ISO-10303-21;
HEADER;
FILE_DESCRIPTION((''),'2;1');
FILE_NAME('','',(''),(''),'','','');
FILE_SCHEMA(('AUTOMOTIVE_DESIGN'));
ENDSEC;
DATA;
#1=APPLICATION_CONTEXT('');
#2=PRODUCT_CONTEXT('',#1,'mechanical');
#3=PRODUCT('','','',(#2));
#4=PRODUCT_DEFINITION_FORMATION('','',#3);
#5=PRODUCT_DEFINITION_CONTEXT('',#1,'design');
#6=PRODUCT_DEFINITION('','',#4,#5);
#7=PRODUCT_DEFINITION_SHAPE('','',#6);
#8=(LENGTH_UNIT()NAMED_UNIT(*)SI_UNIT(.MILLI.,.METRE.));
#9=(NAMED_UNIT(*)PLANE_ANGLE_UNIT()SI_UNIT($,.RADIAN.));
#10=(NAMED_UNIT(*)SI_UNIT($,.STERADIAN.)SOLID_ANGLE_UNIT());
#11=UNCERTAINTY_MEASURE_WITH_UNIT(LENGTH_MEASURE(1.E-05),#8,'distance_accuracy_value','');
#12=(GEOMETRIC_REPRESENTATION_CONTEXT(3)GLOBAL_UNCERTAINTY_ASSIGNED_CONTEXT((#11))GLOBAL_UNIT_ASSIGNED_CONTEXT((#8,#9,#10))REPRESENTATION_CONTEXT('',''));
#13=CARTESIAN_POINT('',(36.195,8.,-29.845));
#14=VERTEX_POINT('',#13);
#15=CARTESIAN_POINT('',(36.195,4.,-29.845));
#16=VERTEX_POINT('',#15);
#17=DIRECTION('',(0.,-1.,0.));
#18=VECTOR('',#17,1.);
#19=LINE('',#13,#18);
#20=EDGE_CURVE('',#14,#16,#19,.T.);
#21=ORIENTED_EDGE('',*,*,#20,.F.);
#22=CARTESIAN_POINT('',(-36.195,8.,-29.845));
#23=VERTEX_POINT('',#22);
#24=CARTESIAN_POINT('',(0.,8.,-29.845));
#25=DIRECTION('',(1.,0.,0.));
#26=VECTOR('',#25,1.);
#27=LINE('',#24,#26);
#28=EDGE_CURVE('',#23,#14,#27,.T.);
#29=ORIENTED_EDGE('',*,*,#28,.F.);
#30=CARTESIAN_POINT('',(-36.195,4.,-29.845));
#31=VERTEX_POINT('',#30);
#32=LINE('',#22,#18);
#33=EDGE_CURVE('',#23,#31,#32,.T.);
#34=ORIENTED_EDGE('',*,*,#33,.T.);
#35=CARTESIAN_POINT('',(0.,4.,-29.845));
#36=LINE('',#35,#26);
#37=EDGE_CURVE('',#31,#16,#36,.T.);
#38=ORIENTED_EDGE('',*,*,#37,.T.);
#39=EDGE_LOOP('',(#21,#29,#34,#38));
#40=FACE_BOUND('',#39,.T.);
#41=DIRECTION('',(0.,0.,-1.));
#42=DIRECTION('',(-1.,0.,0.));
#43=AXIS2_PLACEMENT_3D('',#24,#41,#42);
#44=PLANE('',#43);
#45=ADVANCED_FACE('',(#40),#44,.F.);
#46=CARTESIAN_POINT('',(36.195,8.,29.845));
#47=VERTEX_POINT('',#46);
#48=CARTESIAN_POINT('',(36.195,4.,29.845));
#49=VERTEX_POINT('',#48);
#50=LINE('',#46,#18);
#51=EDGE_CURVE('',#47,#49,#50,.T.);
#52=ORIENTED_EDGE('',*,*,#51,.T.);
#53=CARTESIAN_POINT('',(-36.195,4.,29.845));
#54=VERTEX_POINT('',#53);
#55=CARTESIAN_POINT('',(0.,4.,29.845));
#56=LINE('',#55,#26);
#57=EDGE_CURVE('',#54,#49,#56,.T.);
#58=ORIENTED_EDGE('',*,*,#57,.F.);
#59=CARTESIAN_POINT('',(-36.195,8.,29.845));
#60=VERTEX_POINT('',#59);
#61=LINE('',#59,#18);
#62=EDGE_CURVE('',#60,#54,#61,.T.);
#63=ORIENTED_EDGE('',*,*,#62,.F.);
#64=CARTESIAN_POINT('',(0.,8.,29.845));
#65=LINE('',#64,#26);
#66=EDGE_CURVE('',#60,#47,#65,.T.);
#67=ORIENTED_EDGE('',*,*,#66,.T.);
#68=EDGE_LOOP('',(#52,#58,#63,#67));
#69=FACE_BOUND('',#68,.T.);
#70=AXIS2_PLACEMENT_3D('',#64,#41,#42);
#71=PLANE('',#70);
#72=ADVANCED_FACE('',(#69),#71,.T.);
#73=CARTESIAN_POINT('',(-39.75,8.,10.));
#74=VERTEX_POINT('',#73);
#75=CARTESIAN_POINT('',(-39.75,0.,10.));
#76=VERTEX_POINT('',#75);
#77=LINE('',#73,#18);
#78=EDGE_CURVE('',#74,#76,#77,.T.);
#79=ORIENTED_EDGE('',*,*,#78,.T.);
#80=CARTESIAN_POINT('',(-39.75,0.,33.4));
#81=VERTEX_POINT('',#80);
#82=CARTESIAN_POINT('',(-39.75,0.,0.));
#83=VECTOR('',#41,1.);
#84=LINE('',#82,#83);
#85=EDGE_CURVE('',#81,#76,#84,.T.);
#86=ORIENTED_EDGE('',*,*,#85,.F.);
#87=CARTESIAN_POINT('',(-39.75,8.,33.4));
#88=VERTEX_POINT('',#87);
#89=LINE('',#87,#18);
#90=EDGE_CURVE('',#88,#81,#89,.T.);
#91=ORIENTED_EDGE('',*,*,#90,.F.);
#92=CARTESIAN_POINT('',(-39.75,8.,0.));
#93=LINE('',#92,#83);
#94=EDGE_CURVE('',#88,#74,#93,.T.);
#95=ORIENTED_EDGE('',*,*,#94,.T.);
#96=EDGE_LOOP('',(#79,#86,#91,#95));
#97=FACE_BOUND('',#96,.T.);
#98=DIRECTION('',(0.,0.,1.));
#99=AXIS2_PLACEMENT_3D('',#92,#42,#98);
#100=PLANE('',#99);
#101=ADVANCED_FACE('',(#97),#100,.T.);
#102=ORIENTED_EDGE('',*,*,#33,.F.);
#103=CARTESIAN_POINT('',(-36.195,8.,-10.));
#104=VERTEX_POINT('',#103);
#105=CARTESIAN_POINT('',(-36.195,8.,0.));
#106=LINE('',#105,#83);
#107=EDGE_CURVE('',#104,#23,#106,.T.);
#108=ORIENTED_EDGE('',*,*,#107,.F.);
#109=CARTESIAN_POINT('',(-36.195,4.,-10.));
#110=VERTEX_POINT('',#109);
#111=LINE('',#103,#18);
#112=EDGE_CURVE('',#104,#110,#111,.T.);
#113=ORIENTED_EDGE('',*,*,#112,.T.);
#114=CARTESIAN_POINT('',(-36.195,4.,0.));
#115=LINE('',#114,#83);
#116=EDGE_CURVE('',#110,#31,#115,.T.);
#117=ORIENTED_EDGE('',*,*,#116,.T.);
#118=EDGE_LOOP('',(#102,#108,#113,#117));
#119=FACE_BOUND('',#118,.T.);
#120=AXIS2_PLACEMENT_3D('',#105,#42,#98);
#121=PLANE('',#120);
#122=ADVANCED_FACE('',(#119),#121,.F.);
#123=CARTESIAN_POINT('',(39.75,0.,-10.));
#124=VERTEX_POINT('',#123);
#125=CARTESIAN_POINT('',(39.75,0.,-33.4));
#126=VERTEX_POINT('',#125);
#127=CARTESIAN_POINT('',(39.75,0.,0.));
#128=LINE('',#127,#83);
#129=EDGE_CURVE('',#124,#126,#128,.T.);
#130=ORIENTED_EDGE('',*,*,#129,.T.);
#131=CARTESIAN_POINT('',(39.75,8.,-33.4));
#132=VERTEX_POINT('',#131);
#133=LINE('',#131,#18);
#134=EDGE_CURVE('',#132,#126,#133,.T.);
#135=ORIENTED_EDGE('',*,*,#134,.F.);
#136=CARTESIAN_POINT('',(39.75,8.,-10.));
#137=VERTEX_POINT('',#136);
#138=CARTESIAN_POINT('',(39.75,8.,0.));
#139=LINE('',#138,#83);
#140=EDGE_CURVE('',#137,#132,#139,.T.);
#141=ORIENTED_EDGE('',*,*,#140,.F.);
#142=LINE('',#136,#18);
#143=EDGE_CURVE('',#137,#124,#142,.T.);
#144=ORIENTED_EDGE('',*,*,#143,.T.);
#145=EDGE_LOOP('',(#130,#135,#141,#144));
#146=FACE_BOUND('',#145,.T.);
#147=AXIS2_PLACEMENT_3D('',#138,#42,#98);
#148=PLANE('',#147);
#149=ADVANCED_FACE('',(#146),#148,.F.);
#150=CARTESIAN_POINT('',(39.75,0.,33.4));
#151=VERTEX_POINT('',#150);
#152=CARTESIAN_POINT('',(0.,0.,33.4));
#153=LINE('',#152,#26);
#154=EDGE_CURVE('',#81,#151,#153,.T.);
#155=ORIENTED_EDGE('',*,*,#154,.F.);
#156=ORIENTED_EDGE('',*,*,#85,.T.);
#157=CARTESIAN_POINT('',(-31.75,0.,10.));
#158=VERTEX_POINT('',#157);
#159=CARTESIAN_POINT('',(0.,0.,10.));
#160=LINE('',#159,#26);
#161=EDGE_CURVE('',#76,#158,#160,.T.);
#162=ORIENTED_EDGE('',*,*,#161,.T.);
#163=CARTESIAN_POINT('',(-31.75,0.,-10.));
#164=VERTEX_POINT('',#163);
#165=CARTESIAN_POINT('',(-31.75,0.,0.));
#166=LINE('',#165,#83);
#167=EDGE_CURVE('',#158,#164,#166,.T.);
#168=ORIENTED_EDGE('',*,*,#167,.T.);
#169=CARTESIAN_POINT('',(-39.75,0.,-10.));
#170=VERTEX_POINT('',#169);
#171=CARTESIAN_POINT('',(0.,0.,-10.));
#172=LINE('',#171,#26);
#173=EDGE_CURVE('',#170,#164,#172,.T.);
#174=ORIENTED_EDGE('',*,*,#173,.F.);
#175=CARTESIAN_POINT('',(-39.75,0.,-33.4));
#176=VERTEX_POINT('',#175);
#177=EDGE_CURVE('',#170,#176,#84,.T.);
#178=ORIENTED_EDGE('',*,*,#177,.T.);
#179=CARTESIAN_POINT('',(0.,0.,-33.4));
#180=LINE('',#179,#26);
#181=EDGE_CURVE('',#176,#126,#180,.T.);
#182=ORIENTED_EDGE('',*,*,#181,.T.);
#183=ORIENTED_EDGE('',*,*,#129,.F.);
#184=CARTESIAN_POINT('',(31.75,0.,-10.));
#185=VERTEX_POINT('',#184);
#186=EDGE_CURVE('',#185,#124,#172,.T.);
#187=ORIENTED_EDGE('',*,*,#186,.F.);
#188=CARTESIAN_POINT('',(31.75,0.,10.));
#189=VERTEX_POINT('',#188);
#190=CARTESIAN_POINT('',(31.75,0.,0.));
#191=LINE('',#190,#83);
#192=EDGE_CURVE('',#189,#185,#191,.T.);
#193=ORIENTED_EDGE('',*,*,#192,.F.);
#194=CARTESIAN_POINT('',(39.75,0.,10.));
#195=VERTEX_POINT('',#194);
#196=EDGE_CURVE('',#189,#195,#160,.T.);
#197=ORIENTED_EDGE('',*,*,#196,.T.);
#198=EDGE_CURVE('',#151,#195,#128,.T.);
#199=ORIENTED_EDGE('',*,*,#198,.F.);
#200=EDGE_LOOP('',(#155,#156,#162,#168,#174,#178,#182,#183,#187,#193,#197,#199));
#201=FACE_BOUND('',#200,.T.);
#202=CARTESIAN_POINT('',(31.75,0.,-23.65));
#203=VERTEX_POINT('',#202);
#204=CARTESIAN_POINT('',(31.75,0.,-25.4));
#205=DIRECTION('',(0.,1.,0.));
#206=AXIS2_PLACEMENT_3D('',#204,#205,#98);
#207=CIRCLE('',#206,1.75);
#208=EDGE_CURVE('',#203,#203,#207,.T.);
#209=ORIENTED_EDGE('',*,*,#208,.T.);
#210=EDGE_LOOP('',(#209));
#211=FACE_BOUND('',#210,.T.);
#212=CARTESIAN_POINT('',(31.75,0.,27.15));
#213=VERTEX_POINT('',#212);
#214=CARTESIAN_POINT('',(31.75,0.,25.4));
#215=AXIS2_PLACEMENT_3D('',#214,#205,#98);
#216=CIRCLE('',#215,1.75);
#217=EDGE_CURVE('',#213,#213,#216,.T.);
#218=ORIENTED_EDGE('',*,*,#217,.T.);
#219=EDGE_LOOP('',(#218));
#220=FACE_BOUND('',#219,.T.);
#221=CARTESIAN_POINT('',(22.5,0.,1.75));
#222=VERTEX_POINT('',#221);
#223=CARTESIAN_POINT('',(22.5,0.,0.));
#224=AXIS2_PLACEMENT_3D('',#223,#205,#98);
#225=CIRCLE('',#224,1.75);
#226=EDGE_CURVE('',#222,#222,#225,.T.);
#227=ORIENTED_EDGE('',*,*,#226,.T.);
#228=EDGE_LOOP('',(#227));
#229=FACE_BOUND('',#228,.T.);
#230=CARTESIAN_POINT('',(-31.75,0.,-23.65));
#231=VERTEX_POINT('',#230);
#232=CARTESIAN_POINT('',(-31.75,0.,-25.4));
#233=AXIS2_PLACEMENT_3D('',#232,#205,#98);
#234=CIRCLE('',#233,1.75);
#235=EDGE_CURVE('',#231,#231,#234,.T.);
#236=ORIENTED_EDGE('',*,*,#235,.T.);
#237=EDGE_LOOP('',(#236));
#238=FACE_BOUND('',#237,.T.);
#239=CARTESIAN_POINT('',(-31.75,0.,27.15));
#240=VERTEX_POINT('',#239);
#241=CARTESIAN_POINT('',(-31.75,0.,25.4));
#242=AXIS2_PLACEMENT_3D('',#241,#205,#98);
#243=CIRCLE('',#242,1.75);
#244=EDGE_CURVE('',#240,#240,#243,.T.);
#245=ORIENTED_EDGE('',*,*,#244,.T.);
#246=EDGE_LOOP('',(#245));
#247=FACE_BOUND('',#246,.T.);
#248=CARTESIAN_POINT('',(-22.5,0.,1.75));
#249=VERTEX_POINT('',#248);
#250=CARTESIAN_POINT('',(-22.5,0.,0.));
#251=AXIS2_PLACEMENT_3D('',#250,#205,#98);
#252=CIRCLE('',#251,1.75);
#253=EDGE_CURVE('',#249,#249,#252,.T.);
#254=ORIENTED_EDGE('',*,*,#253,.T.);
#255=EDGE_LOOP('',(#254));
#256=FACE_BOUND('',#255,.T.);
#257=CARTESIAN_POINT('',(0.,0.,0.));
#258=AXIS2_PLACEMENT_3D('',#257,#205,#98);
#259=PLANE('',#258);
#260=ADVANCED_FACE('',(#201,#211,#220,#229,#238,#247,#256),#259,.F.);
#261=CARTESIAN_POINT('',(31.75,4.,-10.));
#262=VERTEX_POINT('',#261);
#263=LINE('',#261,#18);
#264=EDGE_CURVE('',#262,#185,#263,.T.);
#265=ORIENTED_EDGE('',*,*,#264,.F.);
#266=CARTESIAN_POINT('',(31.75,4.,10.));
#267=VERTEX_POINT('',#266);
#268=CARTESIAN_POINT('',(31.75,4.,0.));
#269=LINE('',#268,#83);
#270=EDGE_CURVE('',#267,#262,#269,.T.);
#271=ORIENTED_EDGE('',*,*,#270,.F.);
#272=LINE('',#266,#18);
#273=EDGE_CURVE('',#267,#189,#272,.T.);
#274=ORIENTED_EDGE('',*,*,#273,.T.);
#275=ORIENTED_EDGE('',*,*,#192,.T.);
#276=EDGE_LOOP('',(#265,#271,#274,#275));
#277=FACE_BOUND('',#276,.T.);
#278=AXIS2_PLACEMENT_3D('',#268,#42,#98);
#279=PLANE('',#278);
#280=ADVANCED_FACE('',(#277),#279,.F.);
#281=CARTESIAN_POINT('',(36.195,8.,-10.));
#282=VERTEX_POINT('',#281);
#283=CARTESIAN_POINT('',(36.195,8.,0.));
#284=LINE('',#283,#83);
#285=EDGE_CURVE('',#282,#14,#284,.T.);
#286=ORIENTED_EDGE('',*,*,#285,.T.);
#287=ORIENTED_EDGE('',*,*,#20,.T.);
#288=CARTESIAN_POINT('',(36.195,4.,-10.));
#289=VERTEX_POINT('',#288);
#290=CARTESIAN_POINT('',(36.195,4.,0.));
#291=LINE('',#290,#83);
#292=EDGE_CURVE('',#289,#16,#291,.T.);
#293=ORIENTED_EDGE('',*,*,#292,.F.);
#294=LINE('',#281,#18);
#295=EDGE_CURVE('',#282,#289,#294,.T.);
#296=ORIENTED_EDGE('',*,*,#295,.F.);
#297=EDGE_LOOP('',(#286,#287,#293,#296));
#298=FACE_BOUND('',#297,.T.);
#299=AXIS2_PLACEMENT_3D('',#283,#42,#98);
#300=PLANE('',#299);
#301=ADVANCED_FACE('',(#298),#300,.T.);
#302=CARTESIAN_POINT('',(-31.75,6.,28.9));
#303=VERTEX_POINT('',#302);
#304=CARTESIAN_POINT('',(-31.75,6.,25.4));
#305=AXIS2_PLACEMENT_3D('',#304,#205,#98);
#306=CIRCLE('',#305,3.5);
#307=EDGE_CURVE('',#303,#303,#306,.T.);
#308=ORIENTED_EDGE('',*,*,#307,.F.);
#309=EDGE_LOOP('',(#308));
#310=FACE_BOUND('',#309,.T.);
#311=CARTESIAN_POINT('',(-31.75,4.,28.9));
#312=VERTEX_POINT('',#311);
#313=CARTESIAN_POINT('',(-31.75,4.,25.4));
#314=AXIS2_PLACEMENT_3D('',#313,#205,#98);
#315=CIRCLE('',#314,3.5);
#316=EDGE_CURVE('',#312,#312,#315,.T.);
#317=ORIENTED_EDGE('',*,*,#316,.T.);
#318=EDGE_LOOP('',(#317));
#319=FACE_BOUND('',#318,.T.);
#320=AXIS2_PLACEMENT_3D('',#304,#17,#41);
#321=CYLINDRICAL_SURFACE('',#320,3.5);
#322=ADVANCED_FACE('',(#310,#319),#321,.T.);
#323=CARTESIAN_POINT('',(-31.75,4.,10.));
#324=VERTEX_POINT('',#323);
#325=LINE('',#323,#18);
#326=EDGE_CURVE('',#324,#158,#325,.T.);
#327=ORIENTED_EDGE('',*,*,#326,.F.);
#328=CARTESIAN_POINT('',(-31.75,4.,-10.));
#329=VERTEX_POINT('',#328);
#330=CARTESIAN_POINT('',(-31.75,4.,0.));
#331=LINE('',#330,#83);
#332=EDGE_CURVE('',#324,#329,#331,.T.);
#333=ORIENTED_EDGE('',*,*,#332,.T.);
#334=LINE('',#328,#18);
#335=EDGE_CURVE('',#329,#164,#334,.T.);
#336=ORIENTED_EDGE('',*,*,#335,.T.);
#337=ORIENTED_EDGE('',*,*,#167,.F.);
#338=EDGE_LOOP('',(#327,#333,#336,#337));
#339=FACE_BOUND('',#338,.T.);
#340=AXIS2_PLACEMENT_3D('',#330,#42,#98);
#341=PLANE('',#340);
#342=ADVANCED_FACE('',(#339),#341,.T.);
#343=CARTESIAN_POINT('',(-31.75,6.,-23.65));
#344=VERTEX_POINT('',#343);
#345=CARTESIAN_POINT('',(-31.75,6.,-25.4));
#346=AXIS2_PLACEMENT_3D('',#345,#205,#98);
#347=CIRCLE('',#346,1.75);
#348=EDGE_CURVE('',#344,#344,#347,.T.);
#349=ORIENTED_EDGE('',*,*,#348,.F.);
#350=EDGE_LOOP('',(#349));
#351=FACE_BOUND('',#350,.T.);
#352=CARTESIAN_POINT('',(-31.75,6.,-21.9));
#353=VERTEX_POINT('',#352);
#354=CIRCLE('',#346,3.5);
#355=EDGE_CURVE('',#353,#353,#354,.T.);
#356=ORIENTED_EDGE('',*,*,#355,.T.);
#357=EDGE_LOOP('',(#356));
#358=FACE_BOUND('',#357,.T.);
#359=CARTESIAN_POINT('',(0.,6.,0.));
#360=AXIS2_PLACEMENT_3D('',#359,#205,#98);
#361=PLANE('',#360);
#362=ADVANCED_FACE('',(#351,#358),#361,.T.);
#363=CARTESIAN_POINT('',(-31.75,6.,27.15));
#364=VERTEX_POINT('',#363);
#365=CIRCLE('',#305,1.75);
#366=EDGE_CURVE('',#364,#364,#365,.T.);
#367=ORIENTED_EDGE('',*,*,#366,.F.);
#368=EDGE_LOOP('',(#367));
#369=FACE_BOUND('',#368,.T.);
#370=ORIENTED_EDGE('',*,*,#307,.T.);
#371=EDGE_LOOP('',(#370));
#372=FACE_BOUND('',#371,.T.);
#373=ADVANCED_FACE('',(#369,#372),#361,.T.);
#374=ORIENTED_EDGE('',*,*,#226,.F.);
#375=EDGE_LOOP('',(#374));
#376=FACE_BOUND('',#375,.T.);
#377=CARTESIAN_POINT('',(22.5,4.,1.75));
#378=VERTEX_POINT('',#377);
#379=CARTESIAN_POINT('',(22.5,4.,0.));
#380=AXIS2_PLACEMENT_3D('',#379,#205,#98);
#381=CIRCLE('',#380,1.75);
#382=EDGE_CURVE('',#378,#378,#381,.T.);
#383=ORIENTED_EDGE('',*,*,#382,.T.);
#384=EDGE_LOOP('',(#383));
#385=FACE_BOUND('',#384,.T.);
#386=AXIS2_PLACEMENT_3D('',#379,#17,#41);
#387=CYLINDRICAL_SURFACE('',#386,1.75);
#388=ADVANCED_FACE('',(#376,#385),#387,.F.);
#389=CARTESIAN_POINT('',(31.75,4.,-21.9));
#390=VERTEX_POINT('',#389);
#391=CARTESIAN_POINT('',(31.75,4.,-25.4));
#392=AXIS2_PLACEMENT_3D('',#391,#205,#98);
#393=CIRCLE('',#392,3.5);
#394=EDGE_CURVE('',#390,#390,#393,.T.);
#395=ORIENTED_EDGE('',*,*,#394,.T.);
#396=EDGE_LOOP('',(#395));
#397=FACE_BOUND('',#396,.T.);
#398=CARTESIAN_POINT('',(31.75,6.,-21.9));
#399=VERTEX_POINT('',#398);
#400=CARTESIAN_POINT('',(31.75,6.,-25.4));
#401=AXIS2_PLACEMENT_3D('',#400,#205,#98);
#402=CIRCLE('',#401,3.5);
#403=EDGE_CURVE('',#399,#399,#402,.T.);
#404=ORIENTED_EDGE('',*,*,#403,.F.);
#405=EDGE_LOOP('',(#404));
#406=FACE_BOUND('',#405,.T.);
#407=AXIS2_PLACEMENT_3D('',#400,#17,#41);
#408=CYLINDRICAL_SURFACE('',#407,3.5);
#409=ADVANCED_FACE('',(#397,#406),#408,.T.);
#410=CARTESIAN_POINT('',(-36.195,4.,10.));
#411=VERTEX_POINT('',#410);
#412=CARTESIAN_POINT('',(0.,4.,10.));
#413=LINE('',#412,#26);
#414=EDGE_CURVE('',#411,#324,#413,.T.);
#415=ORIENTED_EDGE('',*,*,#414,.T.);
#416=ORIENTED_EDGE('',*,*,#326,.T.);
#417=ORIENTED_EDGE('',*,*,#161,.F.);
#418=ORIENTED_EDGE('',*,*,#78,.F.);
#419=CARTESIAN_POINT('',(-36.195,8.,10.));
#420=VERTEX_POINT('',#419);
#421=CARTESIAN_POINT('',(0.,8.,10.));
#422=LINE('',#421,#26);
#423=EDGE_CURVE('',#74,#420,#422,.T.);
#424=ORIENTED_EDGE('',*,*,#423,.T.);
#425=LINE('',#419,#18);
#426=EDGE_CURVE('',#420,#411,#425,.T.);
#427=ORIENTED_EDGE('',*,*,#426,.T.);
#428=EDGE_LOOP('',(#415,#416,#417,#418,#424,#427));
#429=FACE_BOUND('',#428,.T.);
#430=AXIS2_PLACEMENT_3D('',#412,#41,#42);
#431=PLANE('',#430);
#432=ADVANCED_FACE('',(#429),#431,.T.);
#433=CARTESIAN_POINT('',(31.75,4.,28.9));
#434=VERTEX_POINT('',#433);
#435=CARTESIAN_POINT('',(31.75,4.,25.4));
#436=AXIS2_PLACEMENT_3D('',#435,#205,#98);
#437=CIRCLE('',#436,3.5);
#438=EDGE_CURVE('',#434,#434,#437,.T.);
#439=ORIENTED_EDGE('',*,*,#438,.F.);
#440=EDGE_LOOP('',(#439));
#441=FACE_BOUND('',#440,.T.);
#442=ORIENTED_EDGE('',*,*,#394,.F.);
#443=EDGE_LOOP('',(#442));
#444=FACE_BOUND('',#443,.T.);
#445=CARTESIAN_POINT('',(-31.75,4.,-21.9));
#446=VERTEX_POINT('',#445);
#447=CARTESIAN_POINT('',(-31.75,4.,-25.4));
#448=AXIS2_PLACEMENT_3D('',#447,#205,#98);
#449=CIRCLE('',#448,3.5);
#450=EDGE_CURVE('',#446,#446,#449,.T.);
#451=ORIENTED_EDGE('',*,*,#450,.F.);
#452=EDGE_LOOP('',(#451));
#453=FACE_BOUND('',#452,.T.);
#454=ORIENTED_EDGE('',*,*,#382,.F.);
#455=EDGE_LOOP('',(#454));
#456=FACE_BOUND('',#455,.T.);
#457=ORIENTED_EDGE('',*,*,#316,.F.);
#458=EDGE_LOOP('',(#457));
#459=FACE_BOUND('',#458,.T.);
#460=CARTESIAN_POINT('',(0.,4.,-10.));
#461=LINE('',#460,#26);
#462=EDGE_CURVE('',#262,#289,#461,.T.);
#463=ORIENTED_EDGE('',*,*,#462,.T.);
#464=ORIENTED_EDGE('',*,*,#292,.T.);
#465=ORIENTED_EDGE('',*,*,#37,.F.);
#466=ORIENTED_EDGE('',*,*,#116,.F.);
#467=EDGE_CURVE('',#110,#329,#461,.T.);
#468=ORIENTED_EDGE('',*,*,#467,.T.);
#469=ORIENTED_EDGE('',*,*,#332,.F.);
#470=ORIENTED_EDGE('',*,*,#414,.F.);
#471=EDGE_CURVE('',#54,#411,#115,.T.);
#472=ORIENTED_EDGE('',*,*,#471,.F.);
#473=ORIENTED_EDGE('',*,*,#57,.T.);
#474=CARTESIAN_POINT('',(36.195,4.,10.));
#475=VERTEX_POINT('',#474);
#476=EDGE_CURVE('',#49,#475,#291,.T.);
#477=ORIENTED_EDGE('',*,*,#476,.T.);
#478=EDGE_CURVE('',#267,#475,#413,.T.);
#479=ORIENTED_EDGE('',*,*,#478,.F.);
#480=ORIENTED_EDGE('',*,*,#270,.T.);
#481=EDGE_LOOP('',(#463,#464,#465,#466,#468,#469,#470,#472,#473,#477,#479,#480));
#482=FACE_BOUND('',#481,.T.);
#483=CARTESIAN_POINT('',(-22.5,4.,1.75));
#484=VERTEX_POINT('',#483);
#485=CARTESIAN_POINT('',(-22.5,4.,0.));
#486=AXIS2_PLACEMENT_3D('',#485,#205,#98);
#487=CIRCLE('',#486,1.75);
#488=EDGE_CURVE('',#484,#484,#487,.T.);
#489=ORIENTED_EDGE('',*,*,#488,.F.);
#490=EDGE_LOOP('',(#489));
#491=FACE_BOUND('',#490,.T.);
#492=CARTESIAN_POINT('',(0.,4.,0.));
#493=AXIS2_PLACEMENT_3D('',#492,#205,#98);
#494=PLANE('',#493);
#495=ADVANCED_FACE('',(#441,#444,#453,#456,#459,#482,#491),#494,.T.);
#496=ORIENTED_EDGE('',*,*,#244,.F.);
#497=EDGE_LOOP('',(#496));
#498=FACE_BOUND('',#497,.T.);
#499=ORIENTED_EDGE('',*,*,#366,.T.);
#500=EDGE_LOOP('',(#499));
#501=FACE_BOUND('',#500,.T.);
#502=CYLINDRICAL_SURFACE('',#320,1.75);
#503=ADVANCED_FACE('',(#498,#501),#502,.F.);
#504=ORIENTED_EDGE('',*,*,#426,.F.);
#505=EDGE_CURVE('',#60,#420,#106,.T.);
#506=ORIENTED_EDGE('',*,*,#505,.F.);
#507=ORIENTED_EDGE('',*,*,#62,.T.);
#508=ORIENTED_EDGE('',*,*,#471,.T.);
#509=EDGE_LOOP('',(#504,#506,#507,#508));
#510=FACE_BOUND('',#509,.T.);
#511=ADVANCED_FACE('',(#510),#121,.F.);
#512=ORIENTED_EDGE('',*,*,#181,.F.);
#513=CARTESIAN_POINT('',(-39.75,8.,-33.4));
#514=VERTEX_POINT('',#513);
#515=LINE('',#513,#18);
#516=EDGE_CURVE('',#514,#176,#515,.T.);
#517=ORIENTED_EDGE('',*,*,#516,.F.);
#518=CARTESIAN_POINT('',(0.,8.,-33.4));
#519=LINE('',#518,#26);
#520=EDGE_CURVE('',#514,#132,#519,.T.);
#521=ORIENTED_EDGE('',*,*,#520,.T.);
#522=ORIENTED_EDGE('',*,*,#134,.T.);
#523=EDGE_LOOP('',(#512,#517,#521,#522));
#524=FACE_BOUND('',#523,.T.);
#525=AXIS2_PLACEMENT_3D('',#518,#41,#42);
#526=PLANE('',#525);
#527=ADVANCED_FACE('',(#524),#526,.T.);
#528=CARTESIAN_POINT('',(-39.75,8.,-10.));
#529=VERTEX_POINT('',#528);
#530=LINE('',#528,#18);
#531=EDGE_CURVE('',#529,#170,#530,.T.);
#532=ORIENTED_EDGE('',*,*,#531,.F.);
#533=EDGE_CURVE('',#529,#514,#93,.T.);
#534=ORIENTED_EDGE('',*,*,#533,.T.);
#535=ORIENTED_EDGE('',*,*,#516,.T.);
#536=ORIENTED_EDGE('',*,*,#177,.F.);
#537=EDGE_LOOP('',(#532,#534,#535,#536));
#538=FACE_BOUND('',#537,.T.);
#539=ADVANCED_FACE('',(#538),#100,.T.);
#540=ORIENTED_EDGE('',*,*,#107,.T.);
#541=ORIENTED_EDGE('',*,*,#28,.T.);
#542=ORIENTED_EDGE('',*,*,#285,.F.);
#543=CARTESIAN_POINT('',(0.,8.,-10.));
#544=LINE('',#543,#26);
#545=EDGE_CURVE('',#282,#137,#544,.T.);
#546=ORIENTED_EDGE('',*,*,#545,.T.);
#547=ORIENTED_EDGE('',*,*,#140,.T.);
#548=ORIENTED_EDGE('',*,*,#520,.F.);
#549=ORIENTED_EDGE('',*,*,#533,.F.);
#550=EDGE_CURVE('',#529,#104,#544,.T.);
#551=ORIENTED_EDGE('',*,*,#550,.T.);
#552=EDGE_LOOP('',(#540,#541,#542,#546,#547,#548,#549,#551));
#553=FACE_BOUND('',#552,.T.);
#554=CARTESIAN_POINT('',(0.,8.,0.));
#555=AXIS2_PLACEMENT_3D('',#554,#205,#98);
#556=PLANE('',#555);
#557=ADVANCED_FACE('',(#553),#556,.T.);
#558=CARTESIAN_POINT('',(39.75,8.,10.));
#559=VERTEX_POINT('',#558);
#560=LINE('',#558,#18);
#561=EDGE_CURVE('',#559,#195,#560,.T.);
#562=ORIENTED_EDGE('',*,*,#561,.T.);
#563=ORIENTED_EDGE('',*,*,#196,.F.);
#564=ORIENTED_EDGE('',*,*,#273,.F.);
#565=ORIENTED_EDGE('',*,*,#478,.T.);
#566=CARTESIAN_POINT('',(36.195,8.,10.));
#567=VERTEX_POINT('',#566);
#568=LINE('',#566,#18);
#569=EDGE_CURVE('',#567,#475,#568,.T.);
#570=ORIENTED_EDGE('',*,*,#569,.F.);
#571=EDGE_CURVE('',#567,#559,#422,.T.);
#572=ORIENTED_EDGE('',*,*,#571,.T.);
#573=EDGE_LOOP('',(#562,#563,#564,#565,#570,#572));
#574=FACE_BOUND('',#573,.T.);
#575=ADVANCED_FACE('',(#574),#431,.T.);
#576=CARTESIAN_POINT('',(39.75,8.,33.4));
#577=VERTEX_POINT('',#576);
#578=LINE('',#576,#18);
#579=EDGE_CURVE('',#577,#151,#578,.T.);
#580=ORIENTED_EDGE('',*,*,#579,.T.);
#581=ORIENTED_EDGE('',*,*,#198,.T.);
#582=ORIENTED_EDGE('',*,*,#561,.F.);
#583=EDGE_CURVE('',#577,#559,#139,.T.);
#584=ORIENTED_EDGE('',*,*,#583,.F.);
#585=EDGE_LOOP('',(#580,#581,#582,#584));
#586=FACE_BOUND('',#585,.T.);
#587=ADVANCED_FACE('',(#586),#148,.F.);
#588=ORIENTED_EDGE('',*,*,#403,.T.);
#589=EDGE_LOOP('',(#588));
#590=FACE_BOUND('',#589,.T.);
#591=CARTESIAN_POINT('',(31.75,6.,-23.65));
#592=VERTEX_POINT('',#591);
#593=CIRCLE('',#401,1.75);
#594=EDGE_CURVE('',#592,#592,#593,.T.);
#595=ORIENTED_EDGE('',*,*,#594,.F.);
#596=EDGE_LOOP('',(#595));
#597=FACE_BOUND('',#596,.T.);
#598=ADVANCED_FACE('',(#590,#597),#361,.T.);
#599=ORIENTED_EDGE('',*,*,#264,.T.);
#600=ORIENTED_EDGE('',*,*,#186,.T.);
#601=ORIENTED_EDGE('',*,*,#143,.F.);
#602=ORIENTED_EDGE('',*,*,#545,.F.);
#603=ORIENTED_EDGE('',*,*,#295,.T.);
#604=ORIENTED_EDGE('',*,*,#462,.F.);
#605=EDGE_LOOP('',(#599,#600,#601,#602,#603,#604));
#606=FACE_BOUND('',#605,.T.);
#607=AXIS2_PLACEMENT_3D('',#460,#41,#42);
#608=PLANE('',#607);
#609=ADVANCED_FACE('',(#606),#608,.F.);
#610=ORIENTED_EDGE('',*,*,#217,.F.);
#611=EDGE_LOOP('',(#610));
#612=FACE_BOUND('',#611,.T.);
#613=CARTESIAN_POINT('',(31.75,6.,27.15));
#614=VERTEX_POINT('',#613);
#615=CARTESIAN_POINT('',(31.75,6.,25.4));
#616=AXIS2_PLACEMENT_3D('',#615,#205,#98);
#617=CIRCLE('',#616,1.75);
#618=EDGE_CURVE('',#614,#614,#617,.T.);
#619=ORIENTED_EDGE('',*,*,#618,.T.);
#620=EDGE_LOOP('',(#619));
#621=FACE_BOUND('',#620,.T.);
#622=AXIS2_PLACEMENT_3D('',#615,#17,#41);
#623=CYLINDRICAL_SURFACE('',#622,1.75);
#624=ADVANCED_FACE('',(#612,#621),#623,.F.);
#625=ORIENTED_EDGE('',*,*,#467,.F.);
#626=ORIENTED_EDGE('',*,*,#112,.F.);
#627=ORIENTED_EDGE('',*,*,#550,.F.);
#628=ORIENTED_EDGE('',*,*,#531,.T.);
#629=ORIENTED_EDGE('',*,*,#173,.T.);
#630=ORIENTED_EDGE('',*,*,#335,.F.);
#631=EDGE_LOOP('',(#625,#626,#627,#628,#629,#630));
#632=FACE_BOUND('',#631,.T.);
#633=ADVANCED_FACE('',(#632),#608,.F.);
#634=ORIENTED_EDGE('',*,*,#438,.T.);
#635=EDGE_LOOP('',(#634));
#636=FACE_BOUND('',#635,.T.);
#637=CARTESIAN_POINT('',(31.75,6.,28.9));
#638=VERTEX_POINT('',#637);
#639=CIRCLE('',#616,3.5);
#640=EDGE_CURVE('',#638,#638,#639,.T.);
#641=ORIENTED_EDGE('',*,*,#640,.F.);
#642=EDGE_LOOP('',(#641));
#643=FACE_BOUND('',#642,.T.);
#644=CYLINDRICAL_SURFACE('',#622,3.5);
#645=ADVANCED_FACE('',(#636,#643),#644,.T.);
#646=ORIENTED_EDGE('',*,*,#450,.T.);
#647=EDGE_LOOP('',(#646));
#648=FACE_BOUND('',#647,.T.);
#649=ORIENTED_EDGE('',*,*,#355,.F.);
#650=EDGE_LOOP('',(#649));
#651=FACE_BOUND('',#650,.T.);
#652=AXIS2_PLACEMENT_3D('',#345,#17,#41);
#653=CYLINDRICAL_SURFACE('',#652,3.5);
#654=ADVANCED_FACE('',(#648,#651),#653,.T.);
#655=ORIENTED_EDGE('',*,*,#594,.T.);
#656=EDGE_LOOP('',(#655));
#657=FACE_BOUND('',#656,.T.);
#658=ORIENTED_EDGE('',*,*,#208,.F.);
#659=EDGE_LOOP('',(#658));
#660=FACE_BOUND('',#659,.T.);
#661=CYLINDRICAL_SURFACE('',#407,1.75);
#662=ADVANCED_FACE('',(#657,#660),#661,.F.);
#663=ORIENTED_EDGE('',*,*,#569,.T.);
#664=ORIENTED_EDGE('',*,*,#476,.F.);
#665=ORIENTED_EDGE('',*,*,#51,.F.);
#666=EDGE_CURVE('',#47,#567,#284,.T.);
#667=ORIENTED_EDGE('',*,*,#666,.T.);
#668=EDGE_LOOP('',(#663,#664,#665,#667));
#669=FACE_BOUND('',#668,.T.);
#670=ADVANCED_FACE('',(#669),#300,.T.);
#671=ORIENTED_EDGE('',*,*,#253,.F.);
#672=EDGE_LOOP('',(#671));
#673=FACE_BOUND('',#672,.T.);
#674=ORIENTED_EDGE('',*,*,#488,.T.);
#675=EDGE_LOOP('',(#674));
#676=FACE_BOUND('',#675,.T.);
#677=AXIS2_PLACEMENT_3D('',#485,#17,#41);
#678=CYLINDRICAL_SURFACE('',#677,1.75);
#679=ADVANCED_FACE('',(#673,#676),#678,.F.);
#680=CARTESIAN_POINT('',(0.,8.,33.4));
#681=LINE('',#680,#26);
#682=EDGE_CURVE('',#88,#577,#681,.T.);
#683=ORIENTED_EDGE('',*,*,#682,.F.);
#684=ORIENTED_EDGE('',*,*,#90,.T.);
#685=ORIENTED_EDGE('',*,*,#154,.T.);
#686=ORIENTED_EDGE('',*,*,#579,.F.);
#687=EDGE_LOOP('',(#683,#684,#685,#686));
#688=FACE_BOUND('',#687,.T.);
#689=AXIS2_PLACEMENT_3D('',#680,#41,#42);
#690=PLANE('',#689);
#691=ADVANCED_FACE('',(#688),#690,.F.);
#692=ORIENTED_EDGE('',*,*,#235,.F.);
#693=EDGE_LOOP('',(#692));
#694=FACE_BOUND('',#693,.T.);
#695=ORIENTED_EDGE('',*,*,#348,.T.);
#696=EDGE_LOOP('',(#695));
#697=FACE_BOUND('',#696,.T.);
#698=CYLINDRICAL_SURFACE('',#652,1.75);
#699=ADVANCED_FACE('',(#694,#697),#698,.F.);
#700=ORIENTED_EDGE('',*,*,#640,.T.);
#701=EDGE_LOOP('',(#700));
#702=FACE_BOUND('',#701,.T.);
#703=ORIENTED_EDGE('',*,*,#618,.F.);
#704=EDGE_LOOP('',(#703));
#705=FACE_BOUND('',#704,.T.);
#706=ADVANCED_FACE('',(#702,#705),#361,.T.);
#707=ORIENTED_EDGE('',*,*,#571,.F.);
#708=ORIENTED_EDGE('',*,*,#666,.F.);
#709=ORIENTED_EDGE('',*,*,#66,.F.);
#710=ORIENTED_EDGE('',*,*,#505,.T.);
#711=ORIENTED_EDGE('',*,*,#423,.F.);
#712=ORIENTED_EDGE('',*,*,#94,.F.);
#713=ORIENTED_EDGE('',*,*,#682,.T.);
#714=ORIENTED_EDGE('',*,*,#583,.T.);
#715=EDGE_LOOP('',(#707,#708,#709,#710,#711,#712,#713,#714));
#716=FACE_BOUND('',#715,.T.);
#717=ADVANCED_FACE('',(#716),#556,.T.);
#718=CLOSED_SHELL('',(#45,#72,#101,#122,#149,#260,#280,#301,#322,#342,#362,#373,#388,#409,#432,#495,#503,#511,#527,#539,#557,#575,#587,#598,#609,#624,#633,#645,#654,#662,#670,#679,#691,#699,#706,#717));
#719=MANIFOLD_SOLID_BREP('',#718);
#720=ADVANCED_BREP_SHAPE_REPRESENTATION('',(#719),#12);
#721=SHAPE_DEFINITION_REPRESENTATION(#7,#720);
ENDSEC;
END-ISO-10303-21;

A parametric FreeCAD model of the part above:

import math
import FreeCAD as App
import Part
import Sketcher

doc = App.newDocument("Part")
body = doc.addObject("PartDesign::Body", "Body")

# Sketch on XZ plane
sketch1 = body.newObject("Sketcher::SketchObject", "Sketch")
sketch1.AttachmentSupport = (doc.getObject("XZ_Plane"), [""])
sketch1.MapMode = "FlatFace"
sketch1.addGeometry(Part.LineSegment(App.Vector(31.8, 10, 0), App.Vector(31.8, -10, 0)), False)
sketch1.addGeometry(Part.LineSegment(App.Vector(31.8, -10, 0), App.Vector(36.2, -10, 0)), False)
sketch1.addGeometry(Part.LineSegment(App.Vector(36.2, -10, 0), App.Vector(36.2, -29.8, 0)), False)
sketch1.addGeometry(Part.LineSegment(App.Vector(36.2, -29.8, 0), App.Vector(-36.2, -29.8, 0)), False)
sketch1.addGeometry(Part.LineSegment(App.Vector(-36.2, -29.8, 0), App.Vector(-36.2, -10, 0)), False)
sketch1.addGeometry(Part.LineSegment(App.Vector(-36.2, -10, 0), App.Vector(-31.8, -10, 0)), False)
sketch1.addGeometry(Part.LineSegment(App.Vector(-31.8, -10, 0), App.Vector(-31.8, 10, 0)), False)
sketch1.addGeometry(Part.LineSegment(App.Vector(-31.8, 10, 0), App.Vector(-36.2, 10, 0)), False)
sketch1.addGeometry(Part.LineSegment(App.Vector(-36.2, 10, 0), App.Vector(-36.2, 29.8, 0)), False)
sketch1.addGeometry(Part.LineSegment(App.Vector(-36.2, 29.8, 0), App.Vector(36.2, 29.8, 0)), False)
sketch1.addGeometry(Part.LineSegment(App.Vector(36.2, 29.8, 0), App.Vector(36.2, 10, 0)), False)
sketch1.addGeometry(Part.LineSegment(App.Vector(36.2, 10, 0), App.Vector(31.8, 10, 0)), False)
sketch1.addGeometry(Part.ArcOfCircle(Part.Circle(App.Vector(-31.8, 25.4, 0), App.Vector(0, 0, 1), 3.5), math.radians(-90), math.radians(0)), False)
sketch1.addGeometry(Part.ArcOfCircle(Part.Circle(App.Vector(-31.8, 25.4, 0), App.Vector(0, 0, 1), 3.5), math.radians(0), math.radians(270)), False)
sketch1.addGeometry(Part.ArcOfCircle(Part.Circle(App.Vector(31.8, 25.4, 0), App.Vector(0, 0, 1), 3.5), math.radians(-180), math.radians(-90)), False)
sketch1.addGeometry(Part.ArcOfCircle(Part.Circle(App.Vector(31.7, 25.4, 0), App.Vector(0, 0, 1), 3.5), math.radians(-90), math.radians(0)), False)
sketch1.addGeometry(Part.ArcOfCircle(Part.Circle(App.Vector(31.8, 25.4, 0), App.Vector(0, 0, 1), 3.5), math.radians(0), math.radians(180)), False)
sketch1.addGeometry(Part.ArcOfCircle(Part.Circle(App.Vector(31.8, -25.4, 0), App.Vector(0, 0, 1), 3.5), math.radians(90), math.radians(180)), False)
sketch1.addGeometry(Part.ArcOfCircle(Part.Circle(App.Vector(31.8, -25.4, 0), App.Vector(0, 0, 1), 3.5), math.radians(180), math.radians(360)), False)
sketch1.addGeometry(Part.ArcOfCircle(Part.Circle(App.Vector(31.7, -25.4, 0), App.Vector(0, 0, 1), 3.5), math.radians(0), math.radians(90)), False)
sketch1.addGeometry(Part.ArcOfCircle(Part.Circle(App.Vector(-31.8, -25.4, 0), App.Vector(0, 0, 1), 3.5), math.radians(0), math.radians(90)), False)
sketch1.addGeometry(Part.ArcOfCircle(Part.Circle(App.Vector(-31.8, -25.4, 0), App.Vector(0, 0, 1), 3.5), math.radians(90), math.radians(360)), False)
sketch1.addGeometry(Part.Circle(App.Vector(22.5, 0, 0), App.Vector(0, 0, 1), 1.8), False)
sketch1.addGeometry(Part.Circle(App.Vector(-22.5, 0, 0), App.Vector(0, 0, 1), 1.8), False)
sketch1.addConstraint(Sketcher.Constraint("Coincident", 0, 2, 1, 1))
sketch1.addConstraint(Sketcher.Constraint("Coincident", 1, 2, 2, 1))
sketch1.addConstraint(Sketcher.Constraint("Coincident", 2, 2, 3, 1))
sketch1.addConstraint(Sketcher.Constraint("Coincident", 3, 2, 4, 1))
sketch1.addConstraint(Sketcher.Constraint("Coincident", 4, 2, 5, 1))
sketch1.addConstraint(Sketcher.Constraint("Coincident", 5, 2, 6, 1))
sketch1.addConstraint(Sketcher.Constraint("Coincident", 6, 2, 7, 1))
sketch1.addConstraint(Sketcher.Constraint("Coincident", 7, 2, 8, 1))
sketch1.addConstraint(Sketcher.Constraint("Coincident", 8, 2, 9, 1))
sketch1.addConstraint(Sketcher.Constraint("Coincident", 9, 2, 10, 1))
sketch1.addConstraint(Sketcher.Constraint("Coincident", 10, 2, 11, 1))
sketch1.addConstraint(Sketcher.Constraint("Coincident", 11, 2, 0, 1))
sketch1.addConstraint(Sketcher.Constraint("Tangent", 12, 1, 13, 2))
sketch1.addConstraint(Sketcher.Constraint("Coincident", 13, 1, 12, 2))
sketch1.addConstraint(Sketcher.Constraint("Tangent", 14, 2, 15, 1))
sketch1.addConstraint(Sketcher.Constraint("Tangent", 15, 2, 16, 1))
sketch1.addConstraint(Sketcher.Constraint("Tangent", 16, 2, 14, 1))
sketch1.addConstraint(Sketcher.Constraint("Tangent", 17, 2, 18, 1))
sketch1.addConstraint(Sketcher.Constraint("Tangent", 18, 2, 19, 1))
sketch1.addConstraint(Sketcher.Constraint("Tangent", 19, 2, 17, 1))
sketch1.addConstraint(Sketcher.Constraint("Tangent", 20, 1, 21, 2))
sketch1.addConstraint(Sketcher.Constraint("Coincident", 21, 1, 20, 2))
sketch1.addConstraint(Sketcher.Constraint("Vertical", 0))
sketch1.addConstraint(Sketcher.Constraint("Horizontal", 1))
sketch1.addConstraint(Sketcher.Constraint("Vertical", 2))
sketch1.addConstraint(Sketcher.Constraint("Horizontal", 3))
sketch1.addConstraint(Sketcher.Constraint("Vertical", 4))
sketch1.addConstraint(Sketcher.Constraint("Horizontal", 5))
sketch1.addConstraint(Sketcher.Constraint("Vertical", 6))
sketch1.addConstraint(Sketcher.Constraint("Horizontal", 7))
sketch1.addConstraint(Sketcher.Constraint("Vertical", 8))
sketch1.addConstraint(Sketcher.Constraint("Horizontal", 9))
sketch1.addConstraint(Sketcher.Constraint("Vertical", 10))
sketch1.addConstraint(Sketcher.Constraint("Horizontal", 11))
sketch1.addConstraint(Sketcher.Constraint("Equal", 13, 14))
sketch1.addConstraint(Sketcher.Constraint("Equal", 16, 17))
sketch1.addConstraint(Sketcher.Constraint("Equal", 19, 20))
sketch1.addConstraint(Sketcher.Constraint("Equal", 22, 23))
sketch1.addConstraint(Sketcher.Constraint("Symmetric", 12, 3, 17, 3, -1, 1))
sketch1.addConstraint(Sketcher.Constraint("Symmetric", 14, 3, 20, 3, -1, 1))
sketch1.addConstraint(Sketcher.Constraint("Symmetric", 22, 3, 23, 3, -1, 1))
sketch1.addConstraint(Sketcher.Constraint("Symmetric", 0, 2, 6, 2, -1, 1))
sketch1.addConstraint(Sketcher.Constraint("Symmetric", 2, 2, 8, 2, -1, 1))
sketch1.addConstraint(Sketcher.Constraint("Symmetric", 4, 2, 10, 2, -1, 1))
sketch1.addConstraint(Sketcher.Constraint("Symmetric", 12, 3, 14, 3, -2))
sketch1.addConstraint(Sketcher.Constraint("Symmetric", 1, 2, 4, 2, -2))
sketch1.addConstraint(Sketcher.Constraint("PointOnObject", 22, 3, -1))
sketch1.addConstraint(Sketcher.Constraint("Horizontal", 16, 3, 13, 1))
sketch1.addConstraint(Sketcher.Constraint("Horizontal", 13, 1, 15, 2))
sketch1.addConstraint(Sketcher.Constraint("Horizontal", 15, 2, 16, 2))
sketch1.addConstraint(Sketcher.Constraint("Horizontal", 21, 3, 17, 2))
sketch1.addConstraint(Sketcher.Constraint("Horizontal", 17, 2, 18, 2))
sketch1.addConstraint(Sketcher.Constraint("Horizontal", 18, 2, 20, 1))
sketch1.addConstraint(Sketcher.Constraint("Vertical", 19, 3, 0, 2))
sketch1.addConstraint(Sketcher.Constraint("Vertical", 6, 2, 12, 1))
sketch1.addConstraint(Sketcher.Constraint("Vertical", 11, 2, 14, 2))
sketch1.addConstraint(Sketcher.Constraint("Vertical", 14, 2, 19, 2))
sketch1.addConstraint(Sketcher.Constraint("Vertical", 12, 1, 21, 1))
sketch1.addConstraint(Sketcher.Constraint("Diameter", 22, 3.5))
sketch1.addConstraint(Sketcher.Constraint("Radius", 12, 3.5))
sketch1.addConstraint(Sketcher.Constraint("DistanceY", 0, 2, 0, 1, 20.0))
sketch1.addConstraint(Sketcher.Constraint("DistanceX", 23, 3, 22, 3, 45.0))
sketch1.addConstraint(Sketcher.Constraint("DistanceX", 3, 2, 3, 1, 72.39))
sketch1.addConstraint(Sketcher.Constraint("DistanceY", -1, 1, 12, 3, 25.4))
sketch1.addConstraint(Sketcher.Constraint("DistanceX", 13, 3, 14, 3, 63.5))
sketch1.addConstraint(Sketcher.Constraint("DistanceY", 2, 2, 2, 1, 19.845))
pad1 = body.newObject("PartDesign::Pad", "Pad")
pad1.Profile = sketch1
pad1.Length = 4
pad1.Reversed = True

# Sketch on XZ plane
sketch2 = body.newObject("Sketcher::SketchObject", "Sketch001")
sketch2.AttachmentSupport = (doc.getObject("XZ_Plane"), [""])
sketch2.MapMode = "FlatFace"
sketch2.addGeometry(Part.LineSegment(App.Vector(39.8, 33.4, 0), App.Vector(39.8, 10, 0)), False)
sketch2.addGeometry(Part.LineSegment(App.Vector(39.8, 10, 0), App.Vector(36.2, 10, 0)), False)
sketch2.addGeometry(Part.LineSegment(App.Vector(36.2, 10, 0), App.Vector(36.2, 29.8, 0)), False)
sketch2.addGeometry(Part.LineSegment(App.Vector(36.2, 29.8, 0), App.Vector(-36.2, 29.8, 0)), False)
sketch2.addGeometry(Part.LineSegment(App.Vector(-36.2, 29.8, 0), App.Vector(-36.2, 10, 0)), False)
sketch2.addGeometry(Part.LineSegment(App.Vector(-36.2, 10, 0), App.Vector(-39.8, 10, 0)), False)
sketch2.addGeometry(Part.LineSegment(App.Vector(-39.8, 10, 0), App.Vector(-39.8, 33.4, 0)), False)
sketch2.addGeometry(Part.LineSegment(App.Vector(-39.8, 33.4, 0), App.Vector(39.8, 33.4, 0)), False)
sketch2.addGeometry(Part.LineSegment(App.Vector(36.2, -10, 0), App.Vector(39.8, -10, 0)), False)
sketch2.addGeometry(Part.LineSegment(App.Vector(39.8, -10, 0), App.Vector(39.8, -33.4, 0)), False)
sketch2.addGeometry(Part.LineSegment(App.Vector(39.8, -33.4, 0), App.Vector(-39.8, -33.4, 0)), False)
sketch2.addGeometry(Part.LineSegment(App.Vector(-39.8, -33.4, 0), App.Vector(-39.8, -10, 0)), False)
sketch2.addGeometry(Part.LineSegment(App.Vector(-39.8, -10, 0), App.Vector(-36.2, -10, 0)), False)
sketch2.addGeometry(Part.LineSegment(App.Vector(-36.2, -10, 0), App.Vector(-36.2, -29.8, 0)), False)
sketch2.addGeometry(Part.LineSegment(App.Vector(-36.2, -29.8, 0), App.Vector(36.2, -29.8, 0)), False)
sketch2.addGeometry(Part.LineSegment(App.Vector(36.2, -29.8, 0), App.Vector(36.2, -10, 0)), False)
sketch2.addConstraint(Sketcher.Constraint("Coincident", 0, 2, 1, 1))
sketch2.addConstraint(Sketcher.Constraint("Coincident", 1, 2, 2, 1))
sketch2.addConstraint(Sketcher.Constraint("Coincident", 2, 2, 3, 1))
sketch2.addConstraint(Sketcher.Constraint("Coincident", 3, 2, 4, 1))
sketch2.addConstraint(Sketcher.Constraint("Coincident", 4, 2, 5, 1))
sketch2.addConstraint(Sketcher.Constraint("Coincident", 5, 2, 6, 1))
sketch2.addConstraint(Sketcher.Constraint("Coincident", 6, 2, 7, 1))
sketch2.addConstraint(Sketcher.Constraint("Coincident", 7, 2, 0, 1))
sketch2.addConstraint(Sketcher.Constraint("Coincident", 8, 2, 9, 1))
sketch2.addConstraint(Sketcher.Constraint("Coincident", 9, 2, 10, 1))
sketch2.addConstraint(Sketcher.Constraint("Coincident", 10, 2, 11, 1))
sketch2.addConstraint(Sketcher.Constraint("Coincident", 11, 2, 12, 1))
sketch2.addConstraint(Sketcher.Constraint("Coincident", 12, 2, 13, 1))
sketch2.addConstraint(Sketcher.Constraint("Coincident", 13, 2, 14, 1))
sketch2.addConstraint(Sketcher.Constraint("Coincident", 14, 2, 15, 1))
sketch2.addConstraint(Sketcher.Constraint("Coincident", 15, 2, 8, 1))
sketch2.addConstraint(Sketcher.Constraint("Vertical", 0))
sketch2.addConstraint(Sketcher.Constraint("Horizontal", 1))
sketch2.addConstraint(Sketcher.Constraint("Vertical", 2))
sketch2.addConstraint(Sketcher.Constraint("Horizontal", 3))
sketch2.addConstraint(Sketcher.Constraint("Vertical", 4))
sketch2.addConstraint(Sketcher.Constraint("Horizontal", 5))
sketch2.addConstraint(Sketcher.Constraint("Vertical", 6))
sketch2.addConstraint(Sketcher.Constraint("Horizontal", 7))
sketch2.addConstraint(Sketcher.Constraint("Horizontal", 8))
sketch2.addConstraint(Sketcher.Constraint("Vertical", 9))
sketch2.addConstraint(Sketcher.Constraint("Horizontal", 10))
sketch2.addConstraint(Sketcher.Constraint("Vertical", 11))
sketch2.addConstraint(Sketcher.Constraint("Horizontal", 12))
sketch2.addConstraint(Sketcher.Constraint("Vertical", 13))
sketch2.addConstraint(Sketcher.Constraint("Horizontal", 14))
sketch2.addConstraint(Sketcher.Constraint("Vertical", 15))
sketch2.addConstraint(Sketcher.Constraint("Symmetric", 5, 2, 8, 2, -1, 1))
sketch2.addConstraint(Sketcher.Constraint("Symmetric", 7, 2, 10, 2, -1, 1))
sketch2.addConstraint(Sketcher.Constraint("Symmetric", 1, 2, 12, 2, -1, 1))
sketch2.addConstraint(Sketcher.Constraint("Symmetric", 3, 2, 14, 2, -1, 1))
sketch2.addConstraint(Sketcher.Constraint("Symmetric", 1, 2, 4, 2, -2))
sketch2.addConstraint(Sketcher.Constraint("Vertical", 7, 2, 8, 2))
sketch2.addConstraint(Sketcher.Constraint("DistanceX", 7, 1, 7, 2, 79.5))
sketch2.addConstraint(Sketcher.Constraint("DistanceY", 0, 2, 0, 1, 23.4))
sketch2.addConstraint(Sketcher.Constraint("DistanceY", -1, 1, 0, 2, 10.0))
sketch2.addConstraint(Sketcher.Constraint("DistanceX", 3, 2, 3, 1, 72.39))
sketch2.addConstraint(Sketcher.Constraint("DistanceY", 2, 1, 2, 2, 19.845))
pad2 = body.newObject("PartDesign::Pad", "Pad001")
pad2.Profile = sketch2
pad2.Length = 8
pad2.Reversed = True

# Sketch on XZ plane
sketch3 = body.newObject("Sketcher::SketchObject", "Sketch002")
sketch3.AttachmentSupport = (doc.getObject("XZ_Plane"), [""])
sketch3.MapMode = "FlatFace"
sketch3.addGeometry(Part.ArcOfCircle(Part.Circle(App.Vector(31.7, 25.4, 0), App.Vector(0, 0, 1), 3.5), math.radians(-90), math.radians(0)), False)
sketch3.addGeometry(Part.ArcOfCircle(Part.Circle(App.Vector(31.8, 25.4, 0), App.Vector(0, 0, 1), 3.5), math.radians(-180), math.radians(-90)), False)
sketch3.addGeometry(Part.ArcOfCircle(Part.Circle(App.Vector(31.8, 25.4, 0), App.Vector(0, 0, 1), 3.5), math.radians(0), math.radians(180)), False)
sketch3.addGeometry(Part.ArcOfCircle(Part.Circle(App.Vector(31.8, 25.4, 0), App.Vector(0, 0, 1), 1.8), math.radians(0), math.radians(180)), False)
sketch3.addGeometry(Part.ArcOfCircle(Part.Circle(App.Vector(31.8, 25.4, 0), App.Vector(0, 0, 1), 1.8), math.radians(180), math.radians(270)), False)
sketch3.addGeometry(Part.ArcOfCircle(Part.Circle(App.Vector(31.8, 25.4, 0), App.Vector(0, 0, 1), 1.8), math.radians(-90), math.radians(0)), False)
sketch3.addGeometry(Part.ArcOfCircle(Part.Circle(App.Vector(-31.8, 25.4, 0), App.Vector(0, 0, 1), 3.5), math.radians(-90), math.radians(0)), False)
sketch3.addGeometry(Part.ArcOfCircle(Part.Circle(App.Vector(-31.8, 25.4, 0), App.Vector(0, 0, 1), 3.5), math.radians(0), math.radians(270)), False)
sketch3.addGeometry(Part.ArcOfCircle(Part.Circle(App.Vector(-31.8, 25.4, 0), App.Vector(0, 0, 1), 1.8), math.radians(-90), math.radians(0)), False)
sketch3.addGeometry(Part.ArcOfCircle(Part.Circle(App.Vector(-31.8, 25.4, 0), App.Vector(0, 0, 1), 1.8), math.radians(0), math.radians(270)), False)
sketch3.addGeometry(Part.ArcOfCircle(Part.Circle(App.Vector(-31.8, -25.4, 0), App.Vector(0, 0, 1), 3.5), math.radians(90), math.radians(360)), False)
sketch3.addGeometry(Part.ArcOfCircle(Part.Circle(App.Vector(-31.8, -25.4, 0), App.Vector(0, 0, 1), 3.5), math.radians(0), math.radians(90)), False)
sketch3.addGeometry(Part.ArcOfCircle(Part.Circle(App.Vector(-31.8, -25.4, 0), App.Vector(0, 0, 1), 1.8), math.radians(90), math.radians(360)), False)
sketch3.addGeometry(Part.ArcOfCircle(Part.Circle(App.Vector(-31.8, -25.4, 0), App.Vector(0, 0, 1), 1.8), math.radians(0), math.radians(90)), False)
sketch3.addGeometry(Part.ArcOfCircle(Part.Circle(App.Vector(31.8, -25.4, 0), App.Vector(0, 0, 1), 3.5), math.radians(90), math.radians(180)), False)
sketch3.addGeometry(Part.ArcOfCircle(Part.Circle(App.Vector(31.7, -25.4, 0), App.Vector(0, 0, 1), 3.5), math.radians(0), math.radians(90)), False)
sketch3.addGeometry(Part.ArcOfCircle(Part.Circle(App.Vector(31.8, -25.4, 0), App.Vector(0, 0, 1), 3.5), math.radians(180), math.radians(360)), False)
sketch3.addGeometry(Part.ArcOfCircle(Part.Circle(App.Vector(31.8, -25.4, 0), App.Vector(0, 0, 1), 1.8), math.radians(90), math.radians(180)), False)
sketch3.addGeometry(Part.ArcOfCircle(Part.Circle(App.Vector(31.8, -25.4, 0), App.Vector(0, 0, 1), 1.8), math.radians(180), math.radians(360)), False)
sketch3.addGeometry(Part.ArcOfCircle(Part.Circle(App.Vector(31.8, -25.4, 0), App.Vector(0, 0, 1), 1.8), math.radians(0), math.radians(90)), False)
sketch3.addConstraint(Sketcher.Constraint("Tangent", 0, 1, 1, 2))
sketch3.addConstraint(Sketcher.Constraint("Tangent", 1, 1, 2, 2))
sketch3.addConstraint(Sketcher.Constraint("Tangent", 2, 1, 0, 2))
sketch3.addConstraint(Sketcher.Constraint("Tangent", 3, 2, 4, 1))
sketch3.addConstraint(Sketcher.Constraint("Tangent", 4, 2, 5, 1))
sketch3.addConstraint(Sketcher.Constraint("Tangent", 5, 2, 3, 1))
sketch3.addConstraint(Sketcher.Constraint("Tangent", 6, 1, 7, 2))
sketch3.addConstraint(Sketcher.Constraint("Coincident", 7, 1, 6, 2))
sketch3.addConstraint(Sketcher.Constraint("Tangent", 8, 1, 9, 2))
sketch3.addConstraint(Sketcher.Constraint("Coincident", 9, 1, 8, 2))
sketch3.addConstraint(Sketcher.Constraint("Tangent", 10, 1, 11, 2))
sketch3.addConstraint(Sketcher.Constraint("Coincident", 11, 1, 10, 2))
sketch3.addConstraint(Sketcher.Constraint("Tangent", 12, 1, 13, 2))
sketch3.addConstraint(Sketcher.Constraint("Coincident", 13, 1, 12, 2))
sketch3.addConstraint(Sketcher.Constraint("Tangent", 14, 1, 15, 2))
sketch3.addConstraint(Sketcher.Constraint("Tangent", 15, 1, 16, 2))
sketch3.addConstraint(Sketcher.Constraint("Tangent", 16, 1, 14, 2))
sketch3.addConstraint(Sketcher.Constraint("Tangent", 17, 2, 18, 1))
sketch3.addConstraint(Sketcher.Constraint("Tangent", 18, 2, 19, 1))
sketch3.addConstraint(Sketcher.Constraint("Tangent", 19, 2, 17, 1))
sketch3.addConstraint(Sketcher.Constraint("Coincident", 3, 3, 0, 3))
sketch3.addConstraint(Sketcher.Constraint("Coincident", 8, 3, 6, 3))
sketch3.addConstraint(Sketcher.Constraint("Coincident", 12, 3, 10, 3))
sketch3.addConstraint(Sketcher.Constraint("Coincident", 17, 3, 14, 3))
sketch3.addConstraint(Sketcher.Constraint("Equal", 2, 6))
sketch3.addConstraint(Sketcher.Constraint("Equal", 5, 8))
sketch3.addConstraint(Sketcher.Constraint("Equal", 7, 10))
sketch3.addConstraint(Sketcher.Constraint("Equal", 9, 12))
sketch3.addConstraint(Sketcher.Constraint("Equal", 11, 14))
sketch3.addConstraint(Sketcher.Constraint("Equal", 13, 17))
sketch3.addConstraint(Sketcher.Constraint("Symmetric", 0, 3, 10, 3, -1, 1))
sketch3.addConstraint(Sketcher.Constraint("Symmetric", 6, 3, 14, 3, -1, 1))
sketch3.addConstraint(Sketcher.Constraint("Symmetric", 0, 3, 6, 3, -2))
sketch3.addConstraint(Sketcher.Constraint("Horizontal", 9, 3, 1, 1))
sketch3.addConstraint(Sketcher.Constraint("Horizontal", 1, 1, 2, 1))
sketch3.addConstraint(Sketcher.Constraint("Horizontal", 2, 1, 3, 2))
sketch3.addConstraint(Sketcher.Constraint("Horizontal", 3, 2, 5, 2))
sketch3.addConstraint(Sketcher.Constraint("Horizontal", 5, 2, 7, 1))
sketch3.addConstraint(Sketcher.Constraint("Horizontal", 7, 1, 9, 1))
sketch3.addConstraint(Sketcher.Constraint("Horizontal", 19, 3, 11, 1))
sketch3.addConstraint(Sketcher.Constraint("Horizontal", 11, 1, 13, 1))
sketch3.addConstraint(Sketcher.Constraint("Horizontal", 13, 1, 15, 1))
sketch3.addConstraint(Sketcher.Constraint("Horizontal", 15, 1, 16, 1))
sketch3.addConstraint(Sketcher.Constraint("Horizontal", 16, 1, 17, 2))
sketch3.addConstraint(Sketcher.Constraint("Horizontal", 17, 2, 18, 2))
sketch3.addConstraint(Sketcher.Constraint("Vertical", 19, 3, 0, 1))
sketch3.addConstraint(Sketcher.Constraint("Vertical", 0, 1, 4, 2))
sketch3.addConstraint(Sketcher.Constraint("Vertical", 13, 3, 6, 1))
sketch3.addConstraint(Sketcher.Constraint("Vertical", 6, 1, 8, 1))
sketch3.addConstraint(Sketcher.Constraint("Vertical", 8, 1, 10, 1))
sketch3.addConstraint(Sketcher.Constraint("Vertical", 10, 1, 12, 1))
sketch3.addConstraint(Sketcher.Constraint("Vertical", 4, 2, 14, 1))
sketch3.addConstraint(Sketcher.Constraint("Vertical", 14, 1, 19, 2))
sketch3.addConstraint(Sketcher.Constraint("Radius", 0, 3.5))
sketch3.addConstraint(Sketcher.Constraint("Radius", 3, 1.75))
sketch3.addConstraint(Sketcher.Constraint("DistanceX", -1, 1, 3, 2, 30.0))
sketch3.addConstraint(Sketcher.Constraint("DistanceY", -1, 1, 0, 3, 25.4))
pad3 = body.newObject("PartDesign::Pad", "Pad002")
pad3.Profile = sketch3
pad3.Length = 6
pad3.Reversed = True

doc.recompute()
